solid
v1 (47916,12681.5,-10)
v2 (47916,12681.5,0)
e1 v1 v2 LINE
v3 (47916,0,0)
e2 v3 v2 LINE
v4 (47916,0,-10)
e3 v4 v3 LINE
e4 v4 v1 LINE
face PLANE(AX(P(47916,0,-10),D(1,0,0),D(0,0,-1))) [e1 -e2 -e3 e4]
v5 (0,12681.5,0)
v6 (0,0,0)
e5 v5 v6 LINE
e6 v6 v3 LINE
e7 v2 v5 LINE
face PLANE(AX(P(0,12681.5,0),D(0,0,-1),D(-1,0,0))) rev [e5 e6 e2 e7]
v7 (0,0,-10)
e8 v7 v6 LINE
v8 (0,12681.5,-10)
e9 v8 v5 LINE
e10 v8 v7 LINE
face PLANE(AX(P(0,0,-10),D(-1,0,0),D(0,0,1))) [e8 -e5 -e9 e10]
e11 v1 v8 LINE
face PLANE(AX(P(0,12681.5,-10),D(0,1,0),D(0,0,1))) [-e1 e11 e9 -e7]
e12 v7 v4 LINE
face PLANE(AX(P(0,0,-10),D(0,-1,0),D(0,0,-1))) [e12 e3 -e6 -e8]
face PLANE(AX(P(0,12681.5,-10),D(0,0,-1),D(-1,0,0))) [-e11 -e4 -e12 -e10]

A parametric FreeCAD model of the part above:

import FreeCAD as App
import Part
import Sketcher
from FreeCAD import Vector
Q = App.Units.Quantity


def add_polygon(sketch, points):
    """Adds a closed chain of lines whose ends are joined by coincident constraints."""
    first, n = sketch.GeometryCount, len(points)
    for a, b in zip(points, points[1:] + points[:1]):
        sketch.addGeometry(Part.LineSegment(App.Vector(*a, 0), App.Vector(*b, 0)), False)
    for i in range(n):
        sketch.addConstraint(Sketcher.Constraint("Coincident", first + i, 2, first + (i + 1) % n, 1))

doc = App.newDocument("Part")
body = doc.addObject("PartDesign::Body", "Body")

# Sketch on XY plane
sketch1 = body.newObject("Sketcher::SketchObject", "Sketch")
sketch1.AttachmentSupport = (doc.getObject("XY_Plane"), [""])
sketch1.MapMode = "FlatFace"
add_polygon(sketch1, [(0, 12682), (0, 0), (47916, 0), (47916, 12682)])  # lines 0-3
sketch1.addConstraint(Sketcher.Constraint("Vertical", 0))
sketch1.addConstraint(Sketcher.Constraint("Horizontal", 1))
sketch1.addConstraint(Sketcher.Constraint("Vertical", 2))
sketch1.addConstraint(Sketcher.Constraint("Horizontal", 3))
sketch1.addConstraint(Sketcher.Constraint("Coincident", 0, 2, -1, 1))
sketch1.addConstraint(Sketcher.Constraint("DistanceX", 1, 1, 1, 2, Q("47916 mm")))
sketch1.addConstraint(Sketcher.Constraint("DistanceY", 0, 2, 0, 1, Q("12681.5 mm")))
pad1 = body.newObject("PartDesign::Pad", "Pad")
pad1.Profile = sketch1
pad1.Length = 10
pad1.Reversed = True

doc.recompute()
